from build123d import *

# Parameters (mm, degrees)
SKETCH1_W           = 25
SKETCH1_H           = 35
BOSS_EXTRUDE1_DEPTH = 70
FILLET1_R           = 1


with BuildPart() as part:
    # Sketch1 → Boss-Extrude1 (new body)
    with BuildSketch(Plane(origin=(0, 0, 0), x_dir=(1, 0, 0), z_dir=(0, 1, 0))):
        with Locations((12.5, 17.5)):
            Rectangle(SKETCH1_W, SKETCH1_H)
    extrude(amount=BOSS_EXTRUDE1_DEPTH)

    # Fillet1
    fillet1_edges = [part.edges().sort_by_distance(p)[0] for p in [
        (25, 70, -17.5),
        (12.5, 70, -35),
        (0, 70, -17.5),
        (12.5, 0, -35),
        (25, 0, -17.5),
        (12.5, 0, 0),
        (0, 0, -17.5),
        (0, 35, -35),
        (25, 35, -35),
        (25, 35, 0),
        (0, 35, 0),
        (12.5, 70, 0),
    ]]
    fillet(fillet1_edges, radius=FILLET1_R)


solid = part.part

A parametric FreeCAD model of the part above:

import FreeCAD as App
import Part
import Sketcher
from FreeCAD import Vector

doc = App.newDocument("Part")
body = doc.addObject("PartDesign::Body", "Body")

sketch1 = body.newObject("Sketcher::SketchObject", "Sketch")
sketch1.AttachmentSupport = (doc.getObject("XZ_Plane"), [""])
sketch1.MapMode = "FlatFace"
sketch1.addGeometry([
    Part.LineSegment(Vector(0, -35, 0), Vector(0, 0, 0)),
    Part.LineSegment(Vector(0, 0, 0), Vector(25, 0, 0)),
    Part.LineSegment(Vector(25, 0, 0), Vector(25, -35, 0)),
    Part.LineSegment(Vector(25, -35, 0), Vector(0, -35, 0)),
], False)
sketch1.addConstraint([
    Sketcher.Constraint("Coincident", 0, 2, 1, 1),
    Sketcher.Constraint("Coincident", 1, 2, 2, 1),
    Sketcher.Constraint("Coincident", 2, 2, 3, 1),
    Sketcher.Constraint("Coincident", 3, 2, 0, 1),
    Sketcher.Constraint("Vertical", 0),
    Sketcher.Constraint("Horizontal", 1),
    Sketcher.Constraint("Vertical", 2),
    Sketcher.Constraint("Horizontal", 3),
    Sketcher.Constraint("Coincident", 0, 2, -1, 1),
    Sketcher.Constraint("DistanceX", 1, 1, 1, 2, 25.0),
    Sketcher.Constraint("DistanceY", 0, 1, 0, 2, 35.0),
])
pad1 = body.newObject("PartDesign::Pad", "Pad")
pad1.Profile = sketch1
pad1.Length = 70
pad1.Reversed = True
doc.recompute()

fillet = body.newObject("PartDesign::Fillet", "Fillet")
fillet.Base = (pad1, ["Edge1"])
fillet.UseAllEdges = True
fillet.Radius = 1

doc.recompute()
